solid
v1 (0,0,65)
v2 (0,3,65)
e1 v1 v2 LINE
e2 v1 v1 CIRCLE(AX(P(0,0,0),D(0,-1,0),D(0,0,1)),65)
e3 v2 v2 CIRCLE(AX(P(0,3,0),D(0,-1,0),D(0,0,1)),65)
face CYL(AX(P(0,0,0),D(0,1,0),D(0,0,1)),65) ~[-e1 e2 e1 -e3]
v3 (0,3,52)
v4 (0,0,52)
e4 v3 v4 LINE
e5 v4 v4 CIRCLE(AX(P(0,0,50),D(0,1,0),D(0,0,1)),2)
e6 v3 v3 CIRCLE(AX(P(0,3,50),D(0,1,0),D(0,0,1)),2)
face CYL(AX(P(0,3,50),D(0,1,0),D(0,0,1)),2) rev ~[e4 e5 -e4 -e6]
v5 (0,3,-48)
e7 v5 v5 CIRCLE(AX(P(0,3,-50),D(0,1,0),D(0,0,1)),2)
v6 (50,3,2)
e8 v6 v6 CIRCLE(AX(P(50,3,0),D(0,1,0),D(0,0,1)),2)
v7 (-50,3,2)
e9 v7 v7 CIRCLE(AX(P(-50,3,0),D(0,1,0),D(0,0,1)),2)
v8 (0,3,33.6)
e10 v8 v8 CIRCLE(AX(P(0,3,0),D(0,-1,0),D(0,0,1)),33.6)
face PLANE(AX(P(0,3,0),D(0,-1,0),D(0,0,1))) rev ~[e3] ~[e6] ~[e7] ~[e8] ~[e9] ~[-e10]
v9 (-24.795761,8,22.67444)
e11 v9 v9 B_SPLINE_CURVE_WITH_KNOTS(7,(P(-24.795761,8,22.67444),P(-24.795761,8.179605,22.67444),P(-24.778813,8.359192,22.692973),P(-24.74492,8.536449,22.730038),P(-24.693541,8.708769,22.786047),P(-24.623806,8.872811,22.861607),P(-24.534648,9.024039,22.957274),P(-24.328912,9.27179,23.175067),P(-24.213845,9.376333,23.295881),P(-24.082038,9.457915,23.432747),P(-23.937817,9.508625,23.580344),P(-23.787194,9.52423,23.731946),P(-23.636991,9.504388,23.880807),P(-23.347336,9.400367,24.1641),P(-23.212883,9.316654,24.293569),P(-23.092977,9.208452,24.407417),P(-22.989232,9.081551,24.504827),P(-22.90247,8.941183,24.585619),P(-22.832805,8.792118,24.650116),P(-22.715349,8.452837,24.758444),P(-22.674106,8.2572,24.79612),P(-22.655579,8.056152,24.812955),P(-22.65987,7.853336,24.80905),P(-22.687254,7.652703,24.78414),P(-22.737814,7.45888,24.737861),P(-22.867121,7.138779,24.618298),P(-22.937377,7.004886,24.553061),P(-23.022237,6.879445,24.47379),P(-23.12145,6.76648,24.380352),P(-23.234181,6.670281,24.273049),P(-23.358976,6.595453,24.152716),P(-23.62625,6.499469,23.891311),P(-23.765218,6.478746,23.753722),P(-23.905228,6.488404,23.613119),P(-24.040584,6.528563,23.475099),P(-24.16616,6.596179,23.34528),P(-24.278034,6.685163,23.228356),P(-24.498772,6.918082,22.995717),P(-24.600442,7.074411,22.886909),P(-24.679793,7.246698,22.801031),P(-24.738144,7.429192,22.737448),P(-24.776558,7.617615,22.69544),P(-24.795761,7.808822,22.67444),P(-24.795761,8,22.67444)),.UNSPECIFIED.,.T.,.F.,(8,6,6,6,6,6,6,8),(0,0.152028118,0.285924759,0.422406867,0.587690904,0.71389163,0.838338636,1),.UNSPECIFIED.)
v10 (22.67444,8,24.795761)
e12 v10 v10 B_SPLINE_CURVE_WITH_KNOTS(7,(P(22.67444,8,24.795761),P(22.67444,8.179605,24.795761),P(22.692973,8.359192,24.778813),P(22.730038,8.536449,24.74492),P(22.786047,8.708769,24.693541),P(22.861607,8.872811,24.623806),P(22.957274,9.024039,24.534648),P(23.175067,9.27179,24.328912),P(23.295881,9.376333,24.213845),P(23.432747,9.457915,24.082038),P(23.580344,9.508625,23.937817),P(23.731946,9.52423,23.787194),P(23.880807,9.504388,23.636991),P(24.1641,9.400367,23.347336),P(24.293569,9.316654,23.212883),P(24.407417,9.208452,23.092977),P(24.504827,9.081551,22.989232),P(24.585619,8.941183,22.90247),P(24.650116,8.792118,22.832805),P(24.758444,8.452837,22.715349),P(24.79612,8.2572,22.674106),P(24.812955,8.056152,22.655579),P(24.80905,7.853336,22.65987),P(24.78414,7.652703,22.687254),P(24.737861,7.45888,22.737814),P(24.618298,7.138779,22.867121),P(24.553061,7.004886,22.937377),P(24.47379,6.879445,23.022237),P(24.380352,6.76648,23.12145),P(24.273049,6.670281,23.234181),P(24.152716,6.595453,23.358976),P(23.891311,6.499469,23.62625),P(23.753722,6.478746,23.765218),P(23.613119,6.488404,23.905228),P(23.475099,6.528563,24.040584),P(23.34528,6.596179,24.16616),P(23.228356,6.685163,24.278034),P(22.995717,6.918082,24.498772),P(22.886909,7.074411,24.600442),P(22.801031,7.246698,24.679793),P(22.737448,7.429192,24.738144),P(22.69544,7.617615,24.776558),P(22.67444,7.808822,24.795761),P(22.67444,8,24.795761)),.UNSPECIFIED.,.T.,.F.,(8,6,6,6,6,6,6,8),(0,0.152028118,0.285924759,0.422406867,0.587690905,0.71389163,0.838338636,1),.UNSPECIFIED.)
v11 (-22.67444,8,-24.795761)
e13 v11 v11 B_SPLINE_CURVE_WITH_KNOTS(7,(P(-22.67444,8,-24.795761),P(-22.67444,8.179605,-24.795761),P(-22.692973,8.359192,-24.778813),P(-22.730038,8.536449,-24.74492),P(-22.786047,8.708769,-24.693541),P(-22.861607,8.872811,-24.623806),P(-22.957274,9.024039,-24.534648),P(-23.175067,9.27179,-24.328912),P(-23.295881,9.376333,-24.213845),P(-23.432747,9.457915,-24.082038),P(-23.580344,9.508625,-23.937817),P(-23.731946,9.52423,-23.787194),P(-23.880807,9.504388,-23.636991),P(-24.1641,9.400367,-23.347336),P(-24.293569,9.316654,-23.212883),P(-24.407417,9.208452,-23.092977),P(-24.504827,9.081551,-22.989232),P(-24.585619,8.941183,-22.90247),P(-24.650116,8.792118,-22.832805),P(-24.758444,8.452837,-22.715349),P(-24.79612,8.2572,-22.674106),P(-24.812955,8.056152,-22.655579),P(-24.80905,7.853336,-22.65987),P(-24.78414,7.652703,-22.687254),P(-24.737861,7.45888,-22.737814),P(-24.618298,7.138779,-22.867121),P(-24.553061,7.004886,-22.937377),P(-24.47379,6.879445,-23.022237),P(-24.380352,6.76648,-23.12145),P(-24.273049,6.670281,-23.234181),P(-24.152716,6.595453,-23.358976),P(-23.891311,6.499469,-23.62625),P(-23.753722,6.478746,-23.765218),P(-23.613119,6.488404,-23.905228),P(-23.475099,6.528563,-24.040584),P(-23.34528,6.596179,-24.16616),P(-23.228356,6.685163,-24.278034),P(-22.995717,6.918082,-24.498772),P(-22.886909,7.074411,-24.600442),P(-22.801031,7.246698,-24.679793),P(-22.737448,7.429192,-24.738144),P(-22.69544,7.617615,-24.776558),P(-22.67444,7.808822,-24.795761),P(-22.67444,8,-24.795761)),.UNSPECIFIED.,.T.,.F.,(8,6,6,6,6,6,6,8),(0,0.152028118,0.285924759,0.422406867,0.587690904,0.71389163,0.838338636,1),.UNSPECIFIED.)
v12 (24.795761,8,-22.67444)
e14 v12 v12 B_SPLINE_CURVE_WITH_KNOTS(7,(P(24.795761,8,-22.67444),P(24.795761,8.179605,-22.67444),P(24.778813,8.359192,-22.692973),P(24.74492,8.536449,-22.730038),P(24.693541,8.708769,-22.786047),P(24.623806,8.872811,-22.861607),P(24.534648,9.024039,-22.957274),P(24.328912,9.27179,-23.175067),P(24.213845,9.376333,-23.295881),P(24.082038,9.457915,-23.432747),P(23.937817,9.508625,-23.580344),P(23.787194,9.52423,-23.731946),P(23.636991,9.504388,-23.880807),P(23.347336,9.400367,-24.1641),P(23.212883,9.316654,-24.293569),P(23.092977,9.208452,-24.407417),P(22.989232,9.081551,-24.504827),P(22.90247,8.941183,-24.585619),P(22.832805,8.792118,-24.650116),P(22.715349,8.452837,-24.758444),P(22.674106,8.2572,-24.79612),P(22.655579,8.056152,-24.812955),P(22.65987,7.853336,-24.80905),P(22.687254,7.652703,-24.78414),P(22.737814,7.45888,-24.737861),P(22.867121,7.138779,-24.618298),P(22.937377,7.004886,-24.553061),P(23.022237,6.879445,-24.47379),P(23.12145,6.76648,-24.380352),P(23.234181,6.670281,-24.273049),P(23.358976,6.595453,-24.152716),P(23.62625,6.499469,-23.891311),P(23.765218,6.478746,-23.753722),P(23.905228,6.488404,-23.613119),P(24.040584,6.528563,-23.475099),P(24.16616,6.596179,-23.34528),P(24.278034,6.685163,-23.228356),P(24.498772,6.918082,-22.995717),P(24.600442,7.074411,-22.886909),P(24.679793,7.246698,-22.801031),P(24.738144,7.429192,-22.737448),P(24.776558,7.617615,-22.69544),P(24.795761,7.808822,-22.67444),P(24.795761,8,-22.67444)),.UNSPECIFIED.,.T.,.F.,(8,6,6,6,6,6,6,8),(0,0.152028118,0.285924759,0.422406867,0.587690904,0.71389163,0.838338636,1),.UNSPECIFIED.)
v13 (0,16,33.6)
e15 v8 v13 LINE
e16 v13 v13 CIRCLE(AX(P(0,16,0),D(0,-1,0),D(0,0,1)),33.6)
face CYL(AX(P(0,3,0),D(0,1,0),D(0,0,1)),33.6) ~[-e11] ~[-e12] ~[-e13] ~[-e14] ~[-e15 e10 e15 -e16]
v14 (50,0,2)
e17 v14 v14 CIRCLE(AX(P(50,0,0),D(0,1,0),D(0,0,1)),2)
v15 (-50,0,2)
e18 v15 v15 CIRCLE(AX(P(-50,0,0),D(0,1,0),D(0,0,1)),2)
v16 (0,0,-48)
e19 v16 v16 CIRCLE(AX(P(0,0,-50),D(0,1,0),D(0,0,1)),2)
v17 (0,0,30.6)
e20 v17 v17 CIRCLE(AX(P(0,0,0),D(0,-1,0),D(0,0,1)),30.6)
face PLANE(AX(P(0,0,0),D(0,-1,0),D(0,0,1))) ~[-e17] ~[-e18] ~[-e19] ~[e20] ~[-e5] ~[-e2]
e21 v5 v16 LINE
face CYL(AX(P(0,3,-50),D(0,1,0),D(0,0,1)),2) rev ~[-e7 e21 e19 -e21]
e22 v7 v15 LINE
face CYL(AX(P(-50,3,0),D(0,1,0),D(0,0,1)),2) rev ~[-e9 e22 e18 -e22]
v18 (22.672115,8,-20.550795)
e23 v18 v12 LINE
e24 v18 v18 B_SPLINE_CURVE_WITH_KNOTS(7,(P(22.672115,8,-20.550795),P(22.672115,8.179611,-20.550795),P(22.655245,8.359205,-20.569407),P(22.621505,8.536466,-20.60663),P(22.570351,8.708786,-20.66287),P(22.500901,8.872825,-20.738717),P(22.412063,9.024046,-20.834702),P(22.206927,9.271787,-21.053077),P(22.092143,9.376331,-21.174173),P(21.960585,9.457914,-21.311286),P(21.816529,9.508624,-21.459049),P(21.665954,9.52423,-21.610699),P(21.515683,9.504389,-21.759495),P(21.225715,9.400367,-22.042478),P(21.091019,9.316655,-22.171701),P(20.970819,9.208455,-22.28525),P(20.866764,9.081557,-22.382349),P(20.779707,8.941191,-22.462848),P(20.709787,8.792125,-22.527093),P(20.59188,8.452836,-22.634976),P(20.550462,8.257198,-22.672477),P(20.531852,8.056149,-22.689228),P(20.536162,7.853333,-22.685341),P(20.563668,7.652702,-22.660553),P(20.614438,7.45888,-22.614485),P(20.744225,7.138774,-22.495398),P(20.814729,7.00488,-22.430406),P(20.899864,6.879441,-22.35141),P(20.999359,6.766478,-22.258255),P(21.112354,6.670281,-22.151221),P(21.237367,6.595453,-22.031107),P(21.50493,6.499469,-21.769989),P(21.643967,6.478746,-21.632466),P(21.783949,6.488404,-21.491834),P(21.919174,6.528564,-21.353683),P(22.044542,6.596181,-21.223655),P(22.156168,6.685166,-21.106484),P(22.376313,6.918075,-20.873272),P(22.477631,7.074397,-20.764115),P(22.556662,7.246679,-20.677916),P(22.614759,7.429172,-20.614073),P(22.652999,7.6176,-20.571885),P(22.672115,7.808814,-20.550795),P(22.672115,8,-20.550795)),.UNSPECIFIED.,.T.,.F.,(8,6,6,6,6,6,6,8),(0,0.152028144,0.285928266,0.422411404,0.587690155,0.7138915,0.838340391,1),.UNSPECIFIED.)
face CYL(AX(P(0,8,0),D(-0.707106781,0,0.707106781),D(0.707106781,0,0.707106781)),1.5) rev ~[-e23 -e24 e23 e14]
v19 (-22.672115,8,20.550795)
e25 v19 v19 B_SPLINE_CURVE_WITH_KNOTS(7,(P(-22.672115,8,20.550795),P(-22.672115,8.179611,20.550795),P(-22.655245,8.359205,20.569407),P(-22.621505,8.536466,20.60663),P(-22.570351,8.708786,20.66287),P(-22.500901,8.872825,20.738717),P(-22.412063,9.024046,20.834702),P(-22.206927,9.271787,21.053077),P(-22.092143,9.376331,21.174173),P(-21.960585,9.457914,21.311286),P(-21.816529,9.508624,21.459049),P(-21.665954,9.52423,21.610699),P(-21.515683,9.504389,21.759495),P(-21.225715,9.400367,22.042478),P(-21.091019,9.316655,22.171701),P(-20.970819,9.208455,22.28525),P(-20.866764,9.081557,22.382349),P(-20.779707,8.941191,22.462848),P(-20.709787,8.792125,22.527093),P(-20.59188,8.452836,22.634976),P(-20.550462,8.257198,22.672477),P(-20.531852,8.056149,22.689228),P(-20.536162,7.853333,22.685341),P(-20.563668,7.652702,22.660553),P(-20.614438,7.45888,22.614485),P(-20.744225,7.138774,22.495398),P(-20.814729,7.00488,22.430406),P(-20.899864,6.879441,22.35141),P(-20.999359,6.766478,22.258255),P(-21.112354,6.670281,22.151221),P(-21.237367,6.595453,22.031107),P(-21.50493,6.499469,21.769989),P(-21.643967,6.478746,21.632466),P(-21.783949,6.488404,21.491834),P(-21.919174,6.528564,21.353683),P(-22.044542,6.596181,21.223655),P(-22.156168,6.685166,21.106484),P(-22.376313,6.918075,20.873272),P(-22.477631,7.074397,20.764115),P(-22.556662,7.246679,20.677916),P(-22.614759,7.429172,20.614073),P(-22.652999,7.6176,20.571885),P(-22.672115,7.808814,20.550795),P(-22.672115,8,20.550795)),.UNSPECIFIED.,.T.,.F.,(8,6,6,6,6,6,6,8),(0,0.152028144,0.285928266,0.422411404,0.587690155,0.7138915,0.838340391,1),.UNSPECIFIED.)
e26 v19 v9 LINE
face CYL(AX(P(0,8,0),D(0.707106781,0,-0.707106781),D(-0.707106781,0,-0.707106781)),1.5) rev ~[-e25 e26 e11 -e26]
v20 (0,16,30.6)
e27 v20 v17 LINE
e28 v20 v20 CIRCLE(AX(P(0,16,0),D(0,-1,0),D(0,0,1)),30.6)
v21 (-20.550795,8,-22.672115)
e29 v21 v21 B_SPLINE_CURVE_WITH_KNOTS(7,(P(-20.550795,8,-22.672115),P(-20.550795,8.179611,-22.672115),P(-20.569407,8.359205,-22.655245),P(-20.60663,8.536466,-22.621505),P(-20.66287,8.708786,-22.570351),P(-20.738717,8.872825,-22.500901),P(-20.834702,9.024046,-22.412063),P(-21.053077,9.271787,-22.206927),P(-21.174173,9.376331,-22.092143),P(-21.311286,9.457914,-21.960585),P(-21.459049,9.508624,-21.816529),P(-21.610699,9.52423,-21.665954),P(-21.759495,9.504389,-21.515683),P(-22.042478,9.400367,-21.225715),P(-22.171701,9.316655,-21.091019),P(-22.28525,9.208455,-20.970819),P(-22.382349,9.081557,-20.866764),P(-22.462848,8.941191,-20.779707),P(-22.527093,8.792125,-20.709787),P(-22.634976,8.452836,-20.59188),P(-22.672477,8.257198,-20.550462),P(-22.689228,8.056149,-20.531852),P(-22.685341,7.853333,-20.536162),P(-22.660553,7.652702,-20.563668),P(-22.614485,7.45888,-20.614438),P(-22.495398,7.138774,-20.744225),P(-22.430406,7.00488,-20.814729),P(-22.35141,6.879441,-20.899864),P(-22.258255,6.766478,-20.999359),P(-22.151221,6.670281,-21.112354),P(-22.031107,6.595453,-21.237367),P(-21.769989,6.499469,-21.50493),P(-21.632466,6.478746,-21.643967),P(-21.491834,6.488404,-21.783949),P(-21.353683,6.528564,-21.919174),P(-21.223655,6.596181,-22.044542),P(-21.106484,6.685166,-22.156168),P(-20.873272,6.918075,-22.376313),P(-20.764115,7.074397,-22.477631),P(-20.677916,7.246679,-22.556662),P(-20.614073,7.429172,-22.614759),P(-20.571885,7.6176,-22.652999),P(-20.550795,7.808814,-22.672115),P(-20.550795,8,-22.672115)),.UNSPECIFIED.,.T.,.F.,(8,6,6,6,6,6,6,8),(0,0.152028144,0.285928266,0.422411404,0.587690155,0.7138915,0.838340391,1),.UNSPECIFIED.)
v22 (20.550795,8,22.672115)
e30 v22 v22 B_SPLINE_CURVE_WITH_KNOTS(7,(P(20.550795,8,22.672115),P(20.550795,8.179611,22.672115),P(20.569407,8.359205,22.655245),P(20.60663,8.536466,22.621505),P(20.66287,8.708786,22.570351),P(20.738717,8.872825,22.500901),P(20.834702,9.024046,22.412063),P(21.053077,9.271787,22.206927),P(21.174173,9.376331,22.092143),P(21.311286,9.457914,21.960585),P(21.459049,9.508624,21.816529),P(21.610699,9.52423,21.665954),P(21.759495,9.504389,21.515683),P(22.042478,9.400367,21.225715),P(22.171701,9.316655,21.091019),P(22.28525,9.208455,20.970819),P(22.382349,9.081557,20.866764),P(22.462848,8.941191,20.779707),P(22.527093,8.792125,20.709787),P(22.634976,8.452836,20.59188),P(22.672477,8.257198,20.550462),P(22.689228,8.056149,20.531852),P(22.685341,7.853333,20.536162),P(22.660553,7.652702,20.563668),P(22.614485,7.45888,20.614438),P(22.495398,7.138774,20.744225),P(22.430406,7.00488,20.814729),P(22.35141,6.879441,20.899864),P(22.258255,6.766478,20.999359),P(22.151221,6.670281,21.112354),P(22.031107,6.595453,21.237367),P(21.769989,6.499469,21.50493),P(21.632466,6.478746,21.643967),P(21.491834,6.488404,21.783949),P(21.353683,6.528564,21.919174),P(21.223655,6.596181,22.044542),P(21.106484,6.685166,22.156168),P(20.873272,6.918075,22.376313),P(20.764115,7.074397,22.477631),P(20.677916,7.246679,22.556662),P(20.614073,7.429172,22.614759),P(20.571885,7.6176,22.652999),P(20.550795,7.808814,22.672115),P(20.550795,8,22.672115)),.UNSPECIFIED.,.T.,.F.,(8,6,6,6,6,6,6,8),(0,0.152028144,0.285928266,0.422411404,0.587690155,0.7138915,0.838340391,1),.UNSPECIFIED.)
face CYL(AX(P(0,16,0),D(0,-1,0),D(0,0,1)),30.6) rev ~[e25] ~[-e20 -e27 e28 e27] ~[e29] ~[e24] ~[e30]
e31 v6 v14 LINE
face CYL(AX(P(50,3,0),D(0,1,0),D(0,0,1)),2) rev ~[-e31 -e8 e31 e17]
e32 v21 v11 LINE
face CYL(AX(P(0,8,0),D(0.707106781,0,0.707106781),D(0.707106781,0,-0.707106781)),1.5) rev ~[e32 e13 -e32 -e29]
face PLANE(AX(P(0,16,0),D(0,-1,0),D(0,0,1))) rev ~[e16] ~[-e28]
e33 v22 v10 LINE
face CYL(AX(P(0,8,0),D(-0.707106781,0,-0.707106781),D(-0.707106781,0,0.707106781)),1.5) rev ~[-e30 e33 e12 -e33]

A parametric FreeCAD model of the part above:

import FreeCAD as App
import Part
import Sketcher

V = App.Vector
Q = App.Units.Quantity

doc = App.newDocument("Part")
body = doc.addObject("PartDesign::Body", "Body")

sketch1 = body.newObject("Sketcher::SketchObject", "Sketch")
sketch1.AttachmentSupport = (doc.getObject("XY_Plane"), [""])
sketch1.MapMode = "FlatFace"
sketch1.addGeometry([
    Part.LineSegment(V(30.6, 16, 0), V(30.6, 0, 0)),
    Part.LineSegment(V(30.6, 0, 0), V(65, 0, 0)),
    Part.LineSegment(V(65, 0, 0), V(65, 3, 0)),
    Part.LineSegment(V(65, 3, 0), V(33.6, 3, 0)),
    Part.LineSegment(V(33.6, 3, 0), V(33.6, 16, 0)),
    Part.LineSegment(V(33.6, 16, 0), V(30.6, 16, 0)),
], False)
sketch1.addConstraint([
    Sketcher.Constraint("Coincident", 0, 2, 1, 1),
    Sketcher.Constraint("Coincident", 1, 2, 2, 1),
    Sketcher.Constraint("Coincident", 2, 2, 3, 1),
    Sketcher.Constraint("Coincident", 3, 2, 4, 1),
    Sketcher.Constraint("Coincident", 4, 2, 5, 1),
    Sketcher.Constraint("Coincident", 5, 2, 0, 1),
    Sketcher.Constraint("Vertical", 0),
    Sketcher.Constraint("Horizontal", 1),
    Sketcher.Constraint("Vertical", 2),
    Sketcher.Constraint("Horizontal", 3),
    Sketcher.Constraint("Vertical", 4),
    Sketcher.Constraint("Horizontal", 5),
    Sketcher.Constraint("PointOnObject", 0, 2, -1),
    Sketcher.Constraint("Equal", 5, 2),
    Sketcher.Constraint("DistanceX", 5, 2, 5, 1, Q("3 mm")),
    Sketcher.Constraint("DistanceY", 0, 2, 0, 1, Q("16 mm")),
    Sketcher.Constraint("DistanceX", 1, 1, 1, 2, Q("34.4 mm")),
    Sketcher.Constraint("DistanceX", -1, 1, 1, 2, Q("65 mm")),
])
revolution = body.newObject("PartDesign::Revolution", "Revolution")
revolution.Profile = sketch1
revolution.ReferenceAxis = (sketch1, ["V_Axis"])
revolution.Angle = 360

sketch2 = body.newObject("Sketcher::SketchObject", "Sketch001")
sketch2.AttachmentSupport = (doc.getObject("XZ_Plane"), [""])
sketch2.MapMode = "FlatFace"
sketch2.AttachmentOffset = App.Placement(V(0, 0, -3), App.Rotation())
sketch2.addGeometry([
    Part.Circle(V(0, -50, 0), V(0, 0, 1), 2),
    Part.Circle(V(50, 0, 0), V(0, 0, 1), 2),
    Part.Circle(V(0, 50, 0), V(0, 0, 1), 2),
    Part.Circle(V(-50, 0, 0), V(0, 0, 1), 2),
], False)
sketch2.addConstraint([
    Sketcher.Constraint("Equal", 0, 1),
    Sketcher.Constraint("Equal", 1, 2),
    Sketcher.Constraint("Equal", 2, 3),
    Sketcher.Constraint("Symmetric", 0, 3, 2, 3, -1, 1),
    Sketcher.Constraint("Symmetric", 1, 3, 3, 3, -1, 1),
    Sketcher.Constraint("PointOnObject", 0, 3, -2),
    Sketcher.Constraint("PointOnObject", 1, 3, -1),
    Sketcher.Constraint("Diameter", 0, Q("4 mm")),
    Sketcher.Constraint("DistanceY", 0, 3, -1, 1, Q("50 mm")),
    Sketcher.Constraint("DistanceX", -1, 1, 1, 3, Q("50 mm")),
])
pocket1 = body.newObject("PartDesign::Pocket", "Pocket")
pocket1.Profile = sketch2
pocket1.Type = "ThroughAll"
pocket1.Reversed = True

sketch3 = body.newObject("Sketcher::SketchObject", "Sketch002")
sketch3.Placement = App.Placement(V(0, 0, 0), App.Rotation(V(0, 1, 0), V(-0.707106781, 0, 0.707106781), V(0.707106781, 0, 0.707106781), "ZXY"))
sketch3.addGeometry(Part.Circle(V(8, 0, 0), V(0, 0, 1), 1.5), False)
sketch3.addConstraint([
    Sketcher.Constraint("PointOnObject", 0, 3, -1),
    Sketcher.Constraint("Diameter", 0, Q("3 mm")),
    Sketcher.Constraint("DistanceX", -1, 1, 0, 3, Q("8 mm")),
])
pocket2 = body.newObject("PartDesign::Pocket", "Pocket001")
pocket2.Profile = sketch3
pocket2.Type = "ThroughAll"
doc.recompute()

polarpattern = body.newObject("PartDesign::PolarPattern", "PolarPattern")
polarpattern.Originals = [pocket2]
polarpattern.Axis = (doc.getObject("Y_Axis"), [""])
polarpattern.Angle = 360
polarpattern.Occurrences = 4
body.Tip = polarpattern

doc.recompute()
